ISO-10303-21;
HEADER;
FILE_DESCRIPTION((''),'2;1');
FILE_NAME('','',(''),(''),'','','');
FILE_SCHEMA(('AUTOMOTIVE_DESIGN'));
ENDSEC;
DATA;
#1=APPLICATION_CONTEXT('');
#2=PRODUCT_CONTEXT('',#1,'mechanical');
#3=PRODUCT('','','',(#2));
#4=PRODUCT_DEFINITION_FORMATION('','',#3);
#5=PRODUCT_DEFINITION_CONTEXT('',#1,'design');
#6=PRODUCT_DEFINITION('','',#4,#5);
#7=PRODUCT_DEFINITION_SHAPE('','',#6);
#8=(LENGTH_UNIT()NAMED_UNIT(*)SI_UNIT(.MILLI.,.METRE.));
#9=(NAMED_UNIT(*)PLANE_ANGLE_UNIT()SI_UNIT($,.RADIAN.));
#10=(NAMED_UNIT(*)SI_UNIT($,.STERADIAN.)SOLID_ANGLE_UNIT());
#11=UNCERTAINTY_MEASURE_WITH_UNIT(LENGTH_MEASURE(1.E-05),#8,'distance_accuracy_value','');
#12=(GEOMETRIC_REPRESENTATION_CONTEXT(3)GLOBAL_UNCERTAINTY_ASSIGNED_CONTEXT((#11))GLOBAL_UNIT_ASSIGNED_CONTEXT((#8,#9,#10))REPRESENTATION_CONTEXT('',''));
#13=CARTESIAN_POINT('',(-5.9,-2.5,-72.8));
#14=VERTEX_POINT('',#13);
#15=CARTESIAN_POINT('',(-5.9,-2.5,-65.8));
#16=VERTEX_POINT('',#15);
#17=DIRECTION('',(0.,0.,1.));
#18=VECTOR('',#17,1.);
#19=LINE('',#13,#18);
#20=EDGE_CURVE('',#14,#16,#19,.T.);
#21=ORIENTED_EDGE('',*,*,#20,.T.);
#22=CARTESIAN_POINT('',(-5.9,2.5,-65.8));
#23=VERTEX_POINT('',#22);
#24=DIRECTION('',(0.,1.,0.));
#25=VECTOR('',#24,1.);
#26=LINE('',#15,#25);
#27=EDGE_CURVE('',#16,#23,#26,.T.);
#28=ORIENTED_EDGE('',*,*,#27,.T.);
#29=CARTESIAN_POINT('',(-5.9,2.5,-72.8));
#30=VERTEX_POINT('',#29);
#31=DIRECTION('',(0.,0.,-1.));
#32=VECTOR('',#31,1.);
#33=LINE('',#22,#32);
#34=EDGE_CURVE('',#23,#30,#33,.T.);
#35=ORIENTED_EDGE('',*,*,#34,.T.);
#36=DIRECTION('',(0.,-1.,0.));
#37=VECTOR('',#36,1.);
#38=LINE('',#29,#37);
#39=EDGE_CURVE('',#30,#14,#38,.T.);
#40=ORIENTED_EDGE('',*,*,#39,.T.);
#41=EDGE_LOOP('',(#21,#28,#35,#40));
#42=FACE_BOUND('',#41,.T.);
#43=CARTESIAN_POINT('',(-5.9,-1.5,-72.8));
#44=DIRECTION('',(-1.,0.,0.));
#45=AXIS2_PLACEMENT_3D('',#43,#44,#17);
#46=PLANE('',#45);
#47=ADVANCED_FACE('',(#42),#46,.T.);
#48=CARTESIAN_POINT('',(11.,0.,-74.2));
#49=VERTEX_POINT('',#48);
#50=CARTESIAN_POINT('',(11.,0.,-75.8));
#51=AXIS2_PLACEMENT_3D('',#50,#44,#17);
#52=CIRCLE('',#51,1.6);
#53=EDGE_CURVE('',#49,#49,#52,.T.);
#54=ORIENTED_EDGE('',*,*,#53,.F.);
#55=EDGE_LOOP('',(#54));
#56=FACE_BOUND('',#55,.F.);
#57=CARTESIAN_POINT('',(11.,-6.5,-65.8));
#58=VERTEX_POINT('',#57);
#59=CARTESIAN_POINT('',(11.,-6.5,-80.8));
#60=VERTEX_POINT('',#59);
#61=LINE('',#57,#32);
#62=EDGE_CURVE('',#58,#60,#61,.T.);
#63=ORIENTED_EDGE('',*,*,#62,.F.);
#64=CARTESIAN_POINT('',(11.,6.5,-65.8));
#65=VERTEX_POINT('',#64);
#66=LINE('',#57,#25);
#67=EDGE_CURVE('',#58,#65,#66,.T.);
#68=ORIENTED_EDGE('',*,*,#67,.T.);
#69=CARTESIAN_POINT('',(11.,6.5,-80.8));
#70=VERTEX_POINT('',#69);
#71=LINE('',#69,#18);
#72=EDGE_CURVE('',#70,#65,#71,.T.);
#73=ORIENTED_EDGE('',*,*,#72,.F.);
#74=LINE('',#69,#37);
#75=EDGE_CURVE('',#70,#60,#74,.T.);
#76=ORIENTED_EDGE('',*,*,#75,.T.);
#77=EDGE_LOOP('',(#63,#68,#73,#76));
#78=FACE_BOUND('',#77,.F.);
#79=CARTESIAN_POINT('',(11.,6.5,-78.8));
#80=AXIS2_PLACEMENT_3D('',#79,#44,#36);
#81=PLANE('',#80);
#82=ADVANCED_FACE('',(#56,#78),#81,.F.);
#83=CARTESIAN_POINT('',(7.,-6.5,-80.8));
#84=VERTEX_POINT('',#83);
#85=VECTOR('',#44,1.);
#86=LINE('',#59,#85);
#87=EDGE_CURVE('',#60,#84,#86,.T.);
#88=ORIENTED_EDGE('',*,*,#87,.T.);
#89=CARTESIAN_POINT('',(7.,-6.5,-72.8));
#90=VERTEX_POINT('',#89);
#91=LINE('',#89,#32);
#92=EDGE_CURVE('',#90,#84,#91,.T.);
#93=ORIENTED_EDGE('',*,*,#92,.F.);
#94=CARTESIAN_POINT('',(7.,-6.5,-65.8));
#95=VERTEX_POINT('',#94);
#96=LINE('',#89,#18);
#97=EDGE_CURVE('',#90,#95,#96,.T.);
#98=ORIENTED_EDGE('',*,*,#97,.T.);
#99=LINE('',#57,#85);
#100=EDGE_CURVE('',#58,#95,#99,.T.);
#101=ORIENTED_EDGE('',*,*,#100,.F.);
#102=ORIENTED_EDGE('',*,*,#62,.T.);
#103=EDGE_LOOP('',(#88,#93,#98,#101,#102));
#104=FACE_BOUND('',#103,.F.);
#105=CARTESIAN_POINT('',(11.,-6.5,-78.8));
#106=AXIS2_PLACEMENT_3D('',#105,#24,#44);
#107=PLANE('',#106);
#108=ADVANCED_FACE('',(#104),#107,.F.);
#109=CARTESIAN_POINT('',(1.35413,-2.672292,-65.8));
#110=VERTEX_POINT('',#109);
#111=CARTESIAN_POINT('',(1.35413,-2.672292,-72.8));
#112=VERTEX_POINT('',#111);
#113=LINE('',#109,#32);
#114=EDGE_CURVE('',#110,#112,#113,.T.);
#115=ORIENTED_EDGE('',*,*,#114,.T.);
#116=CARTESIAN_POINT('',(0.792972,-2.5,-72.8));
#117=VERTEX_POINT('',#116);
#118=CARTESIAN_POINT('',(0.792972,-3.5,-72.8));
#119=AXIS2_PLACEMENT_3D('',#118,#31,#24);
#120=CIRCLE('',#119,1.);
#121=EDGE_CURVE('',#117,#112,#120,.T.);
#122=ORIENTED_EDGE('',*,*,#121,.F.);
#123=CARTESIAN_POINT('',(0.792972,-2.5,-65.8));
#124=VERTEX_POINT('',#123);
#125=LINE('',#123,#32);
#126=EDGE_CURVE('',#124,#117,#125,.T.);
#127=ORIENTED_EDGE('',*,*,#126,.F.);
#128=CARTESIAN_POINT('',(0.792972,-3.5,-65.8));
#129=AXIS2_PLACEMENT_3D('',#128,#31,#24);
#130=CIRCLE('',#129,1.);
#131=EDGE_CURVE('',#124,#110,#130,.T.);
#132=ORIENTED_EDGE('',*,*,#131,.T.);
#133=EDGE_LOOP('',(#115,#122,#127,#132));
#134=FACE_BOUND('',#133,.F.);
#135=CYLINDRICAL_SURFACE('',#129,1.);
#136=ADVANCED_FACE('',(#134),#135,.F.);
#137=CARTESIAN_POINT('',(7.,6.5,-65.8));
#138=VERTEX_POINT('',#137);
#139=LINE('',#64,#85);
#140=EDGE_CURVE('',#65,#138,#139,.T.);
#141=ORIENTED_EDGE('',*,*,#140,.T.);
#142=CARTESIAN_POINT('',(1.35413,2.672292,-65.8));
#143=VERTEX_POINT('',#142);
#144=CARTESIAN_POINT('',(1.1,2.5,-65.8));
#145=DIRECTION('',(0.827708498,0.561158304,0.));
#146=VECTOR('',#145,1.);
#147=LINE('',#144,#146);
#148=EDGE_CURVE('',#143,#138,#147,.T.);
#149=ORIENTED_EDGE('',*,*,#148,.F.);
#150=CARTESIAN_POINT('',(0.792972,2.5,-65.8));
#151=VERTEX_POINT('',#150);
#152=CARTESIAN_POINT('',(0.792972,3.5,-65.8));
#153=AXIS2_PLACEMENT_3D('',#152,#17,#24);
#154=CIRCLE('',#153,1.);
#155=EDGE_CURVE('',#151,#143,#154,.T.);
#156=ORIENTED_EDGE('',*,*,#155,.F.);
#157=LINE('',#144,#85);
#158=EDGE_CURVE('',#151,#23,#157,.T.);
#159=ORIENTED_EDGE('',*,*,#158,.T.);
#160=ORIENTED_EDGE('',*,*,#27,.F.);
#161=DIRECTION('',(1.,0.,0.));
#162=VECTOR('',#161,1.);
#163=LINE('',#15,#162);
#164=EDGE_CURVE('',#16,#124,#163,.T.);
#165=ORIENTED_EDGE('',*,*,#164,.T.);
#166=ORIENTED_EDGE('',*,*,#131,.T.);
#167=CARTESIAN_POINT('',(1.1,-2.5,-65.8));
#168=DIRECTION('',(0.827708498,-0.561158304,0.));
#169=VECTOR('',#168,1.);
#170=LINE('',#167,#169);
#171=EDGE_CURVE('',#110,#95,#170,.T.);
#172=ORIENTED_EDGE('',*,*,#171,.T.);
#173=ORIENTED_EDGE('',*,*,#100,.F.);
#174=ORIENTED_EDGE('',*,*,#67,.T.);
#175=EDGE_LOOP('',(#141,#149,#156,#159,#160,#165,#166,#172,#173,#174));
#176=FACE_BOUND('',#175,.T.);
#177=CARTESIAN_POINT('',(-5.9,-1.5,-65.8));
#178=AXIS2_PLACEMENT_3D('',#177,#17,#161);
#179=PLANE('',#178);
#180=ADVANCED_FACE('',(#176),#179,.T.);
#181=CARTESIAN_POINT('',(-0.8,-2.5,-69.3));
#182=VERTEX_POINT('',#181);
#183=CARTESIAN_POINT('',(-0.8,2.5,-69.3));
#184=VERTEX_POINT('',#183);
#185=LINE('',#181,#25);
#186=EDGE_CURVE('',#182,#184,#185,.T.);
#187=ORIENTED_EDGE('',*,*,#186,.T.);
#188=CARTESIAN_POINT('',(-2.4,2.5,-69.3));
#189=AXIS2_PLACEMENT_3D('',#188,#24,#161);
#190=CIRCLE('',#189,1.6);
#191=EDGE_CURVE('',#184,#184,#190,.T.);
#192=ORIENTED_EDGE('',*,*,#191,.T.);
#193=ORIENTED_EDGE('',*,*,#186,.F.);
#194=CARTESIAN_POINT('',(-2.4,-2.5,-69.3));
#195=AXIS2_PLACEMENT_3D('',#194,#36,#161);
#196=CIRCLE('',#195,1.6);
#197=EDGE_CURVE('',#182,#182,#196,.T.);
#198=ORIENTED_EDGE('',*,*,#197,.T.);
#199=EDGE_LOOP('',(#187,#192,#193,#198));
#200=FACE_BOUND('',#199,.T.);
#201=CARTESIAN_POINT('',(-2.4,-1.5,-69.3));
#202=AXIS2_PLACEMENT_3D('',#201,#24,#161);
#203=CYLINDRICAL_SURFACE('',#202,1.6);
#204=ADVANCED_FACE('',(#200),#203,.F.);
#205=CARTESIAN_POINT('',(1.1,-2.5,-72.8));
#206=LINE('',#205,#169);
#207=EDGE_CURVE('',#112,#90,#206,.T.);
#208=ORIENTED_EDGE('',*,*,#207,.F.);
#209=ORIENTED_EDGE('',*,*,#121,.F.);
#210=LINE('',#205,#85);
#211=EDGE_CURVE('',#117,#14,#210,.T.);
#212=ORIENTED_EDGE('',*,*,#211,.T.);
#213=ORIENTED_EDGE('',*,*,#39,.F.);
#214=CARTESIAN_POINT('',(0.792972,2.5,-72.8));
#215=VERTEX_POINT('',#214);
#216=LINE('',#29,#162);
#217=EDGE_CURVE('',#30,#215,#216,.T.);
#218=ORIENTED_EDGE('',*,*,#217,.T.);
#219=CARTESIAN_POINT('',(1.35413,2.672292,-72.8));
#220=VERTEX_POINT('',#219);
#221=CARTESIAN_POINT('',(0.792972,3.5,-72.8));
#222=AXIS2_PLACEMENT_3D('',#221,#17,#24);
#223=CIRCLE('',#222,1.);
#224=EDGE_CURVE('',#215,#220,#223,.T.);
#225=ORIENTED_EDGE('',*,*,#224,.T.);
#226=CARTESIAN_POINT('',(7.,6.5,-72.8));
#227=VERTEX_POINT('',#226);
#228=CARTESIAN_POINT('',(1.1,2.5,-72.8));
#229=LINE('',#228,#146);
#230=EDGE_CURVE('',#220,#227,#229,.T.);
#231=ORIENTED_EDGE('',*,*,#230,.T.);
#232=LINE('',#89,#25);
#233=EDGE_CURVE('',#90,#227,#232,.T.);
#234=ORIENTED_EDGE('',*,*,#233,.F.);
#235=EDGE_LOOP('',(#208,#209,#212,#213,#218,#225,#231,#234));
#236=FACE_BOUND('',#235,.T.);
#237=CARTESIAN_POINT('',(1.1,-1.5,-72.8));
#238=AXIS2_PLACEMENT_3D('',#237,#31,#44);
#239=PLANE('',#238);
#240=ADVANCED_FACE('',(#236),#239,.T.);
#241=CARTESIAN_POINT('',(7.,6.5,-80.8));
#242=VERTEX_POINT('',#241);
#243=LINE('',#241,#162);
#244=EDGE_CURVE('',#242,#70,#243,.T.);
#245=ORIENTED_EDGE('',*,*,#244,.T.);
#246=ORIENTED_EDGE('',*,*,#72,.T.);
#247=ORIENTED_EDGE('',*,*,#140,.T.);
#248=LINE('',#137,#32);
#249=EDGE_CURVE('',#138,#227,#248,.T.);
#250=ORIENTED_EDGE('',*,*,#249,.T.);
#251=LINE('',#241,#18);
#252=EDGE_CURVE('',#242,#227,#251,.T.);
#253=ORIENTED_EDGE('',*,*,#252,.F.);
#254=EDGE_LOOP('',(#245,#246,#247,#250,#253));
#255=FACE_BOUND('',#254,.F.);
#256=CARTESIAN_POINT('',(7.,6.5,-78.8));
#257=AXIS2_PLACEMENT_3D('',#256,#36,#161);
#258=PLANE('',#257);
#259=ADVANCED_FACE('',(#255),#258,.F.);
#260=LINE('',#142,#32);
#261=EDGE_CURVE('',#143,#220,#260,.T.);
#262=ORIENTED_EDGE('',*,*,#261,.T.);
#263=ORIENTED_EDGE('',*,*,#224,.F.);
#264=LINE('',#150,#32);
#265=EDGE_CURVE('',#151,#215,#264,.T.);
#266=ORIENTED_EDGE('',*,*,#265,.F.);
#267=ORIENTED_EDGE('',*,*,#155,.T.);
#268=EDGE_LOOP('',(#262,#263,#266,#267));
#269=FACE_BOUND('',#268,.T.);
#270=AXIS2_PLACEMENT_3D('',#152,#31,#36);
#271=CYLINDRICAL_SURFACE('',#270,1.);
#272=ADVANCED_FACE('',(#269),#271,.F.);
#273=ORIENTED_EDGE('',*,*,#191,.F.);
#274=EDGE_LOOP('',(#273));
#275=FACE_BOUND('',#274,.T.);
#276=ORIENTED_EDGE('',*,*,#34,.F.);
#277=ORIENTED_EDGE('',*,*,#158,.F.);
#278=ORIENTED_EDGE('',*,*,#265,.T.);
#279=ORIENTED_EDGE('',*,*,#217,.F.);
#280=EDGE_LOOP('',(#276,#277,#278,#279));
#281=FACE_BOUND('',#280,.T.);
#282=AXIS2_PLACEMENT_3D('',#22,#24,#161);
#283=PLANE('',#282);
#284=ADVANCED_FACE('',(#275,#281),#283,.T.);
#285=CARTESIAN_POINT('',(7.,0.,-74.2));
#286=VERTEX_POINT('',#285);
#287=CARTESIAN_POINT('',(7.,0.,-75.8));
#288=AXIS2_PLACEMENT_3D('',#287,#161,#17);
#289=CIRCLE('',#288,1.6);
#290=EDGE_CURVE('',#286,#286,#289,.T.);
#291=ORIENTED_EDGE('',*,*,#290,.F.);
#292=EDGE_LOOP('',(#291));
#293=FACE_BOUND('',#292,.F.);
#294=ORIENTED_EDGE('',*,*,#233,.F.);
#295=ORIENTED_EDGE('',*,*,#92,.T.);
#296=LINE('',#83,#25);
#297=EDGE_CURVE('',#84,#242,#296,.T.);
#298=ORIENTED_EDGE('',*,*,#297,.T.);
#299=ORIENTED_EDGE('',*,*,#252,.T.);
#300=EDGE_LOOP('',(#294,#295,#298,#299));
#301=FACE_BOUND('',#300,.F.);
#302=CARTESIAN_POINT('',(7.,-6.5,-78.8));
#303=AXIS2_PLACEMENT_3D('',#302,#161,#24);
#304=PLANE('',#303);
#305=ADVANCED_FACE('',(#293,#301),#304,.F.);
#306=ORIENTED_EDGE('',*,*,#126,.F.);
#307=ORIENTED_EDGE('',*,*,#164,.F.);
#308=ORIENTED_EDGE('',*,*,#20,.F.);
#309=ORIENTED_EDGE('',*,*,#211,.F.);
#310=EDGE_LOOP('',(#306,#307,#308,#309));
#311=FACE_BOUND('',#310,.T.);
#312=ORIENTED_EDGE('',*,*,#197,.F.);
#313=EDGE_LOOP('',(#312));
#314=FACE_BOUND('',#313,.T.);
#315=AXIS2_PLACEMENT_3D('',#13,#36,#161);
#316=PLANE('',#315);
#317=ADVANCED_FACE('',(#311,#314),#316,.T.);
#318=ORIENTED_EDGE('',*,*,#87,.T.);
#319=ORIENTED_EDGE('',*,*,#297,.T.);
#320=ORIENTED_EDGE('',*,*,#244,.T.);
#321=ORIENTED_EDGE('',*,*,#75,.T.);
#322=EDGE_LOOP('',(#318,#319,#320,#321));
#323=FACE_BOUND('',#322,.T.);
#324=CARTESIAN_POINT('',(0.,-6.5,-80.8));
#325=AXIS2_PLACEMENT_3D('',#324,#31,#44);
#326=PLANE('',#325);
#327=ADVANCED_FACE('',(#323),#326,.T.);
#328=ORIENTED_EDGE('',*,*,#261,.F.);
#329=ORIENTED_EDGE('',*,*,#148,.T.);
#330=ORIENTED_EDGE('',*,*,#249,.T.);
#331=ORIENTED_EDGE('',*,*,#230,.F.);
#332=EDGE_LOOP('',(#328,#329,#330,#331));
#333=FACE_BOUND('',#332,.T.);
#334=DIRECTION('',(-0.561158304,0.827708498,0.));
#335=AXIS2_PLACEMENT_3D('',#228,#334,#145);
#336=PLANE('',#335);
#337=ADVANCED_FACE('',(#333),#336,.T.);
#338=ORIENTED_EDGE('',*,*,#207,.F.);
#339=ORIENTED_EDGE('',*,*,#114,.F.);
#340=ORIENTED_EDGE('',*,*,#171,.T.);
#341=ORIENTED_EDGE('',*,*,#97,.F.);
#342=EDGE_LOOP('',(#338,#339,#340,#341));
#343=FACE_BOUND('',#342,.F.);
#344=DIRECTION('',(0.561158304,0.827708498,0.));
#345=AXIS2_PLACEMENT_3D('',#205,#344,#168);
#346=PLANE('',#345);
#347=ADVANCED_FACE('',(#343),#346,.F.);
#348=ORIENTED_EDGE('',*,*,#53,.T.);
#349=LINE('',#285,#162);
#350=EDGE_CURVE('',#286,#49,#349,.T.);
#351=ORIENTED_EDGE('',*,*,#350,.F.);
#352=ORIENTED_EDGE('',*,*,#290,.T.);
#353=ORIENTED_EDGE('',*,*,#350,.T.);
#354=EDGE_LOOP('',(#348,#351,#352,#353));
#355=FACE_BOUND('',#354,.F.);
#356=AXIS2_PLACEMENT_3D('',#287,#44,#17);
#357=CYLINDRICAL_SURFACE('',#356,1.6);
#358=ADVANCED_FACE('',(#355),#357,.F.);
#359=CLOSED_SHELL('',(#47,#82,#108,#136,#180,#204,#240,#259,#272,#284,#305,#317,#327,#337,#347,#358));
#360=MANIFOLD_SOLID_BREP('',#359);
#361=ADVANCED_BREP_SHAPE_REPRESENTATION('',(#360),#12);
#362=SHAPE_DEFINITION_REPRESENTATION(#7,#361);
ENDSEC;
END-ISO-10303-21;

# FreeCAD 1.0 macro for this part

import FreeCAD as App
import Part
import Sketcher
Q = App.Units.Quantity


def edges_at(feature, points):
    """Names of the edges that pass closest to the given points."""
    edges = feature.Shape.Edges
    near = lambda p: min(range(len(edges)), key=lambda i: edges[i].distToShape(Part.Vertex(*p))[0])
    return sorted({f"Edge{near(p) + 1}" for p in points})

doc = App.newDocument("Part")
body = doc.addObject("PartDesign::Body", "Body")
body.AllowCompound = True

sketch1 = body.newObject("Sketcher::SketchObject", "Sketch")
sketch1.AttachmentSupport = (doc.getObject("YZ_Plane"), [""])
sketch1.MapMode = "FlatFace"
sketch1.addGeometry(Part.LineSegment(App.Vector(3.5, -3.5, 0), App.Vector(3.5, 6.5, 0)), False)
sketch1.addGeometry(Part.LineSegment(App.Vector(3.5, 6.5, 0), App.Vector(-3.5, 6.5, 0)), False)
sketch1.addGeometry(Part.LineSegment(App.Vector(-3.5, 6.5, 0), App.Vector(-3.5, -3.5, 0)), False)
sketch1.addGeometry(Part.LineSegment(App.Vector(-3.5, -3.5, 0), App.Vector(3.5, -3.5, 0)), False)
sketch1.addGeometry(Part.Circle(App.Vector(0, 0, 0), App.Vector(0, 0, 1), 1.6), False)
sketch1.addGeometry(Part.LineSegment(App.Vector(3.5, -62.8, 0), App.Vector(-3.5, -62.8, 0)), False)
sketch1.addGeometry(Part.LineSegment(App.Vector(-3.5, -62.8, 0), App.Vector(-3.5, -72.8, 0)), False)
sketch1.addGeometry(Part.LineSegment(App.Vector(-3.5, -72.8, 0), App.Vector(3.5, -72.8, 0)), False)
sketch1.addGeometry(Part.LineSegment(App.Vector(3.5, -72.8, 0), App.Vector(3.5, -62.8, 0)), False)
sketch1.addGeometry(Part.Circle(App.Vector(0, -66.3, 0), App.Vector(0, 0, 1), 1.6), False)
sketch1.addConstraint(Sketcher.Constraint("Coincident", 0, 2, 1, 1))
sketch1.addConstraint(Sketcher.Constraint("Coincident", 1, 2, 2, 1))
sketch1.addConstraint(Sketcher.Constraint("Coincident", 2, 2, 3, 1))
sketch1.addConstraint(Sketcher.Constraint("Coincident", 3, 2, 0, 1))
sketch1.addConstraint(Sketcher.Constraint("Coincident", 5, 2, 6, 1))
sketch1.addConstraint(Sketcher.Constraint("Coincident", 6, 2, 7, 1))
sketch1.addConstraint(Sketcher.Constraint("Coincident", 7, 2, 8, 1))
sketch1.addConstraint(Sketcher.Constraint("Coincident", 8, 2, 5, 1))
sketch1.addConstraint(Sketcher.Constraint("Vertical", 0))
sketch1.addConstraint(Sketcher.Constraint("Horizontal", 1))
sketch1.addConstraint(Sketcher.Constraint("Vertical", 2))
sketch1.addConstraint(Sketcher.Constraint("Horizontal", 3))
sketch1.addConstraint(Sketcher.Constraint("Horizontal", 5))
sketch1.addConstraint(Sketcher.Constraint("Vertical", 6))
sketch1.addConstraint(Sketcher.Constraint("Horizontal", 7))
sketch1.addConstraint(Sketcher.Constraint("Vertical", 8))
sketch1.addConstraint(Sketcher.Constraint("Coincident", 4, 3, -1, 1))
sketch1.addConstraint(Sketcher.Constraint("Equal", 4, 9))
sketch1.addConstraint(Sketcher.Constraint("PointOnObject", 9, 3, -2))
sketch1.addConstraint(Sketcher.Constraint("Vertical", 2, 2, 5, 2))
sketch1.addConstraint(Sketcher.Constraint("Vertical", 3, 2, 7, 2))
sketch1.addConstraint(Sketcher.Constraint("Equal", 2, 6))
sketch1.addConstraint(Sketcher.Constraint("Diameter", 4, Q("3.2 mm")))
sketch1.addConstraint(Sketcher.Constraint("DistanceX", 1, 2, 1, 1, Q("7 mm")))
sketch1.addConstraint(Sketcher.Constraint("DistanceY", 9, 3, -1, 1, Q("66.3 mm")))
sketch1.addConstraint(Sketcher.Constraint("DistanceX", -1, 1, 0, 2, Q("3.5 mm")))
sketch1.addConstraint(Sketcher.Constraint("DistanceY", 2, 2, -1, 1, Q("3.5 mm")))
sketch1.addConstraint(Sketcher.Constraint("DistanceY", 9, 3, 5, 2, Q("3.5 mm")))
sketch1.addConstraint(Sketcher.Constraint("DistanceY", 0, 1, 0, 2, Q("10 mm")))
pad1 = body.newObject("PartDesign::Pad", "Pad")
pad1.Profile = sketch1
pad1.Length = 3

sketch2 = body.newObject("Sketcher::SketchObject", "Sketch001")
sketch2.AttachmentSupport = (doc.getObject("YZ_Plane"), [""])
sketch2.MapMode = "FlatFace"
sketch2.AttachmentOffset = App.Placement(App.Vector(0, 0, 3), App.Rotation())
sketch2.addGeometry(Part.LineSegment(App.Vector(3.5, 2.5, 0), App.Vector(3.5, 6.5, 0)), False)
sketch2.addGeometry(Part.LineSegment(App.Vector(3.5, 6.5, 0), App.Vector(-3.5, 6.5, 0)), False)
sketch2.addGeometry(Part.LineSegment(App.Vector(-3.5, 6.5, 0), App.Vector(-3.5, 2.5, 0)), False)
sketch2.addGeometry(Part.LineSegment(App.Vector(-3.5, 2.5, 0), App.Vector(3.5, 2.5, 0)), False)
sketch2.addGeometry(Part.LineSegment(App.Vector(3.5, -68.8, 0), App.Vector(-3.5, -68.8, 0)), False)
sketch2.addGeometry(Part.LineSegment(App.Vector(-3.5, -68.8, 0), App.Vector(-3.5, -72.8, 0)), False)
sketch2.addGeometry(Part.LineSegment(App.Vector(-3.5, -72.8, 0), App.Vector(3.5, -72.8, 0)), False)
sketch2.addGeometry(Part.LineSegment(App.Vector(3.5, -72.8, 0), App.Vector(3.5, -68.8, 0)), False)
sketch2.addConstraint(Sketcher.Constraint("Coincident", 0, 2, 1, 1))
sketch2.addConstraint(Sketcher.Constraint("Coincident", 1, 2, 2, 1))
sketch2.addConstraint(Sketcher.Constraint("Coincident", 2, 2, 3, 1))
sketch2.addConstraint(Sketcher.Constraint("Coincident", 3, 2, 0, 1))
sketch2.addConstraint(Sketcher.Constraint("Coincident", 4, 2, 5, 1))
sketch2.addConstraint(Sketcher.Constraint("Coincident", 5, 2, 6, 1))
sketch2.addConstraint(Sketcher.Constraint("Coincident", 6, 2, 7, 1))
sketch2.addConstraint(Sketcher.Constraint("Coincident", 7, 2, 4, 1))
sketch2.addConstraint(Sketcher.Constraint("Vertical", 0))
sketch2.addConstraint(Sketcher.Constraint("Horizontal", 1))
sketch2.addConstraint(Sketcher.Constraint("Vertical", 2))
sketch2.addConstraint(Sketcher.Constraint("Horizontal", 3))
sketch2.addConstraint(Sketcher.Constraint("Horizontal", 4))
sketch2.addConstraint(Sketcher.Constraint("Vertical", 5))
sketch2.addConstraint(Sketcher.Constraint("Horizontal", 6))
sketch2.addConstraint(Sketcher.Constraint("Vertical", 7))
sketch2.addConstraint(Sketcher.Constraint("Vertical", 2, 2, 4, 2))
sketch2.addConstraint(Sketcher.Constraint("Vertical", 3, 2, 6, 2))
sketch2.addConstraint(Sketcher.Constraint("Equal", 2, 5))
sketch2.addConstraint(Sketcher.Constraint("DistanceY", 0, 1, 0, 2, Q("4 mm")))
sketch2.addConstraint(Sketcher.Constraint("DistanceX", 1, 2, 1, 1, Q("7 mm")))
sketch2.addConstraint(Sketcher.Constraint("DistanceX", -1, 1, 0, 2, Q("3.5 mm")))
sketch2.addConstraint(Sketcher.Constraint("DistanceY", -1, 1, 0, 2, Q("6.5 mm")))
sketch2.addConstraint(Sketcher.Constraint("DistanceY", 4, 2, -1, 1, Q("68.8 mm")))
pad2 = body.newObject("PartDesign::Pad", "Pad001")
pad2.Profile = sketch2
pad2.Length = 10

sketch3 = body.newObject("Sketcher::SketchObject", "Sketch002")
sketch3.AttachmentSupport = (doc.getObject("YZ_Plane"), [""])
sketch3.MapMode = "FlatFace"
sketch3.addGeometry(Part.LineSegment(App.Vector(-3.5, 6.5, 0), App.Vector(3.5, 6.5, 0)), False)
sketch3.addGeometry(Part.LineSegment(App.Vector(3.5, 6.5, 0), App.Vector(3.5, -3.5, 0)), False)
sketch3.addGeometry(Part.LineSegment(App.Vector(3.5, -3.5, 0), App.Vector(-3.5, -3.5, 0)), False)
sketch3.addGeometry(Part.LineSegment(App.Vector(-3.5, -3.5, 0), App.Vector(-3.5, 6.5, 0)), False)
sketch3.addGeometry(Part.Circle(App.Vector(0, 0, 0), App.Vector(0, 0, 1), 1.6), False)
sketch3.addConstraint(Sketcher.Constraint("Coincident", 0, 2, 1, 1))
sketch3.addConstraint(Sketcher.Constraint("Coincident", 1, 2, 2, 1))
sketch3.addConstraint(Sketcher.Constraint("Coincident", 2, 2, 3, 1))
sketch3.addConstraint(Sketcher.Constraint("Coincident", 3, 2, 0, 1))
sketch3.addConstraint(Sketcher.Constraint("Horizontal", 0))
sketch3.addConstraint(Sketcher.Constraint("Vertical", 1))
sketch3.addConstraint(Sketcher.Constraint("Horizontal", 2))
sketch3.addConstraint(Sketcher.Constraint("Vertical", 3))
sketch3.addConstraint(Sketcher.Constraint("Coincident", 4, 3, -1, 1))
sketch3.addConstraint(Sketcher.Constraint("Diameter", 4, Q("3.2 mm")))
sketch3.addConstraint(Sketcher.Constraint("DistanceX", 0, 1, 0, 2, Q("7 mm")))
sketch3.addConstraint(Sketcher.Constraint("DistanceY", 1, 2, 1, 1, Q("10 mm")))
sketch3.addConstraint(Sketcher.Constraint("DistanceX", -1, 1, 0, 2, Q("3.5 mm")))
sketch3.addConstraint(Sketcher.Constraint("DistanceY", -1, 1, 0, 2, Q("6.5 mm")))
pocket1 = body.newObject("PartDesign::Pocket", "Pocket")
pocket1.Profile = sketch3
pocket1.Type = "ThroughAll"
pocket1.Reversed = True

sketch4 = body.newObject("Sketcher::SketchObject", "Sketch003")
sketch4.AttachmentSupport = (doc.getObject("XZ_Plane"), [""])
sketch4.MapMode = "FlatFace"
sketch4.AttachmentOffset = App.Placement(App.Vector(0, 0, 3.5), App.Rotation())
sketch4.addGeometry(Part.LineSegment(App.Vector(3, -62.8, 0), App.Vector(0, -62.8, 0)), False)
sketch4.addGeometry(Part.LineSegment(App.Vector(0, -62.8, 0), App.Vector(0, -72.8, 0)), False)
sketch4.addGeometry(Part.LineSegment(App.Vector(0, -72.8, 0), App.Vector(13, -72.8, 0)), False)
sketch4.addGeometry(Part.LineSegment(App.Vector(13, -72.8, 0), App.Vector(13, -68.8, 0)), False)
sketch4.addGeometry(Part.LineSegment(App.Vector(13, -68.8, 0), App.Vector(3, -68.8, 0)), False)
sketch4.addGeometry(Part.LineSegment(App.Vector(3, -68.8, 0), App.Vector(3, -62.8, 0)), False)
sketch4.addConstraint(Sketcher.Constraint("Coincident", 0, 2, 1, 1))
sketch4.addConstraint(Sketcher.Constraint("Coincident", 1, 2, 2, 1))
sketch4.addConstraint(Sketcher.Constraint("Coincident", 2, 2, 3, 1))
sketch4.addConstraint(Sketcher.Constraint("Coincident", 3, 2, 4, 1))
sketch4.addConstraint(Sketcher.Constraint("Coincident", 4, 2, 5, 1))
sketch4.addConstraint(Sketcher.Constraint("Coincident", 5, 2, 0, 1))
sketch4.addConstraint(Sketcher.Constraint("Horizontal", 0))
sketch4.addConstraint(Sketcher.Constraint("Vertical", 1))
sketch4.addConstraint(Sketcher.Constraint("Horizontal", 2))
sketch4.addConstraint(Sketcher.Constraint("Vertical", 3))
sketch4.addConstraint(Sketcher.Constraint("Horizontal", 4))
sketch4.addConstraint(Sketcher.Constraint("Vertical", 5))
sketch4.addConstraint(Sketcher.Constraint("PointOnObject", 0, 2, -2))
sketch4.addConstraint(Sketcher.Constraint("Equal", 4, 1))
sketch4.addConstraint(Sketcher.Constraint("DistanceX", 0, 2, 0, 1, Q("3 mm")))
sketch4.addConstraint(Sketcher.Constraint("DistanceX", 2, 1, 2, 2, Q("13 mm")))
sketch4.addConstraint(Sketcher.Constraint("DistanceY", 3, 1, 3, 2, Q("4 mm")))
sketch4.addConstraint(Sketcher.Constraint("DistanceY", 0, 2, -1, 1, Q("62.8 mm")))
pad3 = body.newObject("PartDesign::Pad", "Pad002")
pad3.Profile = sketch4
pad3.Length = 3

sketch5 = body.newObject("Sketcher::SketchObject", "Sketch004")
sketch5.AttachmentSupport = (doc.getObject("XZ_Plane"), [""])
sketch5.MapMode = "FlatFace"
sketch5.AttachmentOffset = App.Placement(App.Vector(0, 0, -3.5), App.Rotation())
sketch5.addGeometry(Part.LineSegment(App.Vector(13, -72.8, 0), App.Vector(0, -72.8, 0)), False)
sketch5.addGeometry(Part.LineSegment(App.Vector(0, -72.8, 0), App.Vector(0, -62.8, 0)), False)
sketch5.addGeometry(Part.LineSegment(App.Vector(0, -62.8, 0), App.Vector(3, -62.8, 0)), False)
sketch5.addGeometry(Part.LineSegment(App.Vector(3, -62.8, 0), App.Vector(3, -68.8, 0)), False)
sketch5.addGeometry(Part.LineSegment(App.Vector(3, -68.8, 0), App.Vector(13, -68.8, 0)), False)
sketch5.addGeometry(Part.LineSegment(App.Vector(13, -68.8, 0), App.Vector(13, -72.8, 0)), False)
sketch5.addConstraint(Sketcher.Constraint("Coincident", 0, 2, 1, 1))
sketch5.addConstraint(Sketcher.Constraint("Coincident", 1, 2, 2, 1))
sketch5.addConstraint(Sketcher.Constraint("Coincident", 2, 2, 3, 1))
sketch5.addConstraint(Sketcher.Constraint("Coincident", 3, 2, 4, 1))
sketch5.addConstraint(Sketcher.Constraint("Coincident", 4, 2, 5, 1))
sketch5.addConstraint(Sketcher.Constraint("Coincident", 5, 2, 0, 1))
sketch5.addConstraint(Sketcher.Constraint("Horizontal", 0))
sketch5.addConstraint(Sketcher.Constraint("Vertical", 1))
sketch5.addConstraint(Sketcher.Constraint("Horizontal", 2))
sketch5.addConstraint(Sketcher.Constraint("Vertical", 3))
sketch5.addConstraint(Sketcher.Constraint("Horizontal", 4))
sketch5.addConstraint(Sketcher.Constraint("Vertical", 5))
sketch5.addConstraint(Sketcher.Constraint("PointOnObject", 0, 2, -2))
sketch5.addConstraint(Sketcher.Constraint("Equal", 4, 1))
sketch5.addConstraint(Sketcher.Constraint("DistanceX", 0, 2, 0, 1, Q("13 mm")))
sketch5.addConstraint(Sketcher.Constraint("DistanceX", 2, 1, 2, 2, Q("3 mm")))
sketch5.addConstraint(Sketcher.Constraint("DistanceY", 3, 2, 3, 1, Q("6 mm")))
sketch5.addConstraint(Sketcher.Constraint("DistanceY", 0, 2, -1, 1, Q("72.8 mm")))
pad4 = body.newObject("PartDesign::Pad", "Pad003")
pad4.Profile = sketch5
pad4.Length = 3
pad4.Reversed = True

sketch6 = body.newObject("Sketcher::SketchObject", "Sketch005")
sketch6.AttachmentSupport = (doc.getObject("YZ_Plane"), [""])
sketch6.MapMode = "FlatFace"
sketch6.AttachmentOffset = App.Placement(App.Vector(0, 0, 13), App.Rotation())
sketch6.addGeometry(Part.LineSegment(App.Vector(6.5, -68.8, 0), App.Vector(-6.5, -68.8, 0)), False)
sketch6.addGeometry(Part.LineSegment(App.Vector(-6.5, -68.8, 0), App.Vector(-6.5, -72.8, 0)), False)
sketch6.addGeometry(Part.LineSegment(App.Vector(-6.5, -72.8, 0), App.Vector(6.5, -72.8, 0)), False)
sketch6.addGeometry(Part.LineSegment(App.Vector(6.5, -72.8, 0), App.Vector(6.5, -68.8, 0)), False)
sketch6.addConstraint(Sketcher.Constraint("Coincident", 0, 2, 1, 1))
sketch6.addConstraint(Sketcher.Constraint("Coincident", 1, 2, 2, 1))
sketch6.addConstraint(Sketcher.Constraint("Coincident", 2, 2, 3, 1))
sketch6.addConstraint(Sketcher.Constraint("Coincident", 3, 2, 0, 1))
sketch6.addConstraint(Sketcher.Constraint("Horizontal", 0))
sketch6.addConstraint(Sketcher.Constraint("Vertical", 1))
sketch6.addConstraint(Sketcher.Constraint("Horizontal", 2))
sketch6.addConstraint(Sketcher.Constraint("Vertical", 3))
sketch6.addConstraint(Sketcher.Constraint("DistanceX", 0, 2, 0, 1, Q("13 mm")))
sketch6.addConstraint(Sketcher.Constraint("DistanceY", 1, 2, 1, 1, Q("4 mm")))
sketch6.addConstraint(Sketcher.Constraint("DistanceX", 0, 2, -1, 1, Q("6.5 mm")))
sketch6.addConstraint(Sketcher.Constraint("DistanceY", 0, 2, -1, 1, Q("68.8 mm")))
pocket2 = body.newObject("PartDesign::Pocket", "Pocket001")
pocket2.Profile = sketch6
pocket2.Length = 2

sketch7 = body.newObject("Sketcher::SketchObject", "Sketch006")
sketch7.AttachmentSupport = (doc.getObject("XY_Plane"), [""])
sketch7.MapMode = "FlatFace"
sketch7.AttachmentOffset = App.Placement(App.Vector(0, 0, -72.8), App.Rotation())
sketch7.addGeometry(Part.LineSegment(App.Vector(11, -6.5, 0), App.Vector(7, -6.5, 0)), False)
sketch7.addGeometry(Part.LineSegment(App.Vector(7, -6.5, 0), App.Vector(7, 6.5, 0)), False)
sketch7.addGeometry(Part.LineSegment(App.Vector(7, 6.5, 0), App.Vector(11, 6.5, 0)), False)
sketch7.addGeometry(Part.LineSegment(App.Vector(11, 6.5, 0), App.Vector(11, -6.5, 0)), False)
sketch7.addConstraint(Sketcher.Constraint("Coincident", 0, 2, 1, 1))
sketch7.addConstraint(Sketcher.Constraint("Coincident", 1, 2, 2, 1))
sketch7.addConstraint(Sketcher.Constraint("Coincident", 2, 2, 3, 1))
sketch7.addConstraint(Sketcher.Constraint("Coincident", 3, 2, 0, 1))
sketch7.addConstraint(Sketcher.Constraint("Horizontal", 0))
sketch7.addConstraint(Sketcher.Constraint("Vertical", 1))
sketch7.addConstraint(Sketcher.Constraint("Horizontal", 2))
sketch7.addConstraint(Sketcher.Constraint("Vertical", 3))
sketch7.addConstraint(Sketcher.Constraint("DistanceX", 0, 2, 0, 1, Q("4 mm")))
sketch7.addConstraint(Sketcher.Constraint("DistanceY", 1, 1, 1, 2, Q("13 mm")))
sketch7.addConstraint(Sketcher.Constraint("DistanceX", -1, 1, 0, 2, Q("7 mm")))
sketch7.addConstraint(Sketcher.Constraint("DistanceY", 0, 2, -1, 1, Q("6.5 mm")))
pad5 = body.newObject("PartDesign::Pad", "Pad004")
pad5.Profile = sketch7
pad5.Length = 6
pad5.Reversed = True

sketch8 = body.newObject("Sketcher::SketchObject", "Sketch007")
sketch8.AttachmentSupport = (doc.getObject("YZ_Plane"), [""])
sketch8.MapMode = "FlatFace"
sketch8.AttachmentOffset = App.Placement(App.Vector(0, 0, 7), App.Rotation())
sketch8.addGeometry(Part.Circle(App.Vector(0, -75.8, 0), App.Vector(0, 0, 1), 1.6), False)
sketch8.addConstraint(Sketcher.Constraint("PointOnObject", 0, 3, -2))
sketch8.addConstraint(Sketcher.Constraint("Diameter", 0, Q("3.2 mm")))
sketch8.addConstraint(Sketcher.Constraint("DistanceY", 0, 3, -1, 1, Q("75.8 mm")))
pocket3 = body.newObject("PartDesign::Pocket", "Pocket002")
pocket3.Profile = sketch8
pocket3.Length = 6
pocket3.Reversed = True

sketch9 = body.newObject("Sketcher::SketchObject", "Sketch008")
sketch9.AttachmentSupport = (doc.getObject("YZ_Plane"), [""])
sketch9.MapMode = "FlatFace"
sketch9.AttachmentOffset = App.Placement(App.Vector(0, 0, 3), App.Rotation())
sketch9.addGeometry(Part.LineSegment(App.Vector(-6.5, -62.8, 0), App.Vector(-6.5, -68.8, 0)), False)
sketch9.addGeometry(Part.LineSegment(App.Vector(-6.5, -68.8, 0), App.Vector(6.5, -68.8, 0)), False)
sketch9.addGeometry(Part.LineSegment(App.Vector(6.5, -68.8, 0), App.Vector(6.5, -62.8, 0)), False)
sketch9.addGeometry(Part.LineSegment(App.Vector(6.5, -62.8, 0), App.Vector(-6.5, -62.8, 0)), False)
sketch9.addGeometry(Part.Circle(App.Vector(0, -66.3, 0), App.Vector(0, 0, 1), 1.6), False)
sketch9.addConstraint(Sketcher.Constraint("Coincident", 0, 2, 1, 1))
sketch9.addConstraint(Sketcher.Constraint("Coincident", 1, 2, 2, 1))
sketch9.addConstraint(Sketcher.Constraint("Coincident", 2, 2, 3, 1))
sketch9.addConstraint(Sketcher.Constraint("Coincident", 3, 2, 0, 1))
sketch9.addConstraint(Sketcher.Constraint("Vertical", 0))
sketch9.addConstraint(Sketcher.Constraint("Horizontal", 1))
sketch9.addConstraint(Sketcher.Constraint("Vertical", 2))
sketch9.addConstraint(Sketcher.Constraint("Horizontal", 3))
sketch9.addConstraint(Sketcher.Constraint("PointOnObject", 4, 3, -2))
sketch9.addConstraint(Sketcher.Constraint("Diameter", 4, Q("3.2 mm")))
sketch9.addConstraint(Sketcher.Constraint("DistanceX", 1, 1, 1, 2, Q("13 mm")))
sketch9.addConstraint(Sketcher.Constraint("DistanceY", 0, 2, 0, 1, Q("6 mm")))
sketch9.addConstraint(Sketcher.Constraint("DistanceY", 4, 3, -1, 1, Q("66.3 mm")))
sketch9.addConstraint(Sketcher.Constraint("DistanceX", 0, 2, -1, 1, Q("6.5 mm")))
sketch9.addConstraint(Sketcher.Constraint("DistanceY", 0, 2, -1, 1, Q("68.8 mm")))
pocket4 = body.newObject("PartDesign::Pocket", "Pocket003")
pocket4.Profile = sketch9
pocket4.Length = 6

sketch10 = body.newObject("Sketcher::SketchObject", "Sketch009")
sketch10.AttachmentSupport = (doc.getObject("YZ_Plane"), [""])
sketch10.MapMode = "FlatFace"
sketch10.addGeometry(Part.LineSegment(App.Vector(-6.5, -72.8, 0), App.Vector(-6.5, -68.8, 0)), False)
sketch10.addGeometry(Part.LineSegment(App.Vector(-6.5, -68.8, 0), App.Vector(6.5, -68.8, 0)), False)
sketch10.addGeometry(Part.LineSegment(App.Vector(6.5, -68.8, 0), App.Vector(6.5, -72.8, 0)), False)
sketch10.addGeometry(Part.LineSegment(App.Vector(6.5, -72.8, 0), App.Vector(-6.5, -72.8, 0)), False)
sketch10.addConstraint(Sketcher.Constraint("Coincident", 0, 2, 1, 1))
sketch10.addConstraint(Sketcher.Constraint("Coincident", 1, 2, 2, 1))
sketch10.addConstraint(Sketcher.Constraint("Coincident", 2, 2, 3, 1))
sketch10.addConstraint(Sketcher.Constraint("Coincident", 3, 2, 0, 1))
sketch10.addConstraint(Sketcher.Constraint("Vertical", 0))
sketch10.addConstraint(Sketcher.Constraint("Horizontal", 1))
sketch10.addConstraint(Sketcher.Constraint("Vertical", 2))
sketch10.addConstraint(Sketcher.Constraint("Horizontal", 3))
sketch10.addConstraint(Sketcher.Constraint("DistanceX", 1, 1, 1, 2, Q("13 mm")))
sketch10.addConstraint(Sketcher.Constraint("DistanceY", 0, 1, 0, 2, Q("4 mm")))
sketch10.addConstraint(Sketcher.Constraint("DistanceX", 0, 2, -1, 1, Q("6.5 mm")))
sketch10.addConstraint(Sketcher.Constraint("DistanceY", 0, 2, -1, 1, Q("68.8 mm")))
pad6 = body.newObject("PartDesign::Pad", "Pad005")
pad6.Profile = sketch10
pad6.Length = 5.9
pad6.Reversed = True

sketch11 = body.newObject("Sketcher::SketchObject", "Sketch010")
sketch11.AttachmentSupport = (doc.getObject("XY_Plane"), [""])
sketch11.MapMode = "FlatFace"
sketch11.AttachmentOffset = App.Placement(App.Vector(0, 0, -72.8), App.Rotation())
sketch11.addGeometry(Part.LineSegment(App.Vector(-5.9, 6.5, 0), App.Vector(7, 6.5, 0)), False)
sketch11.addGeometry(Part.LineSegment(App.Vector(7, 6.5, 0), App.Vector(0.1, 1.5, 0)), False)
sketch11.addGeometry(Part.LineSegment(App.Vector(0.1, 1.5, 0), App.Vector(-5.9, 1.5, 0)), False)
sketch11.addGeometry(Part.LineSegment(App.Vector(-5.9, 1.5, 0), App.Vector(-5.9, 6.5, 0)), False)
sketch11.addGeometry(Part.LineSegment(App.Vector(0.1, -1.5, 0), App.Vector(7, -6.5, 0)), False)
sketch11.addGeometry(Part.LineSegment(App.Vector(7, -6.5, 0), App.Vector(-5.9, -6.5, 0)), False)
sketch11.addGeometry(Part.LineSegment(App.Vector(-5.9, -6.5, 0), App.Vector(-5.9, -1.5, 0)), False)
sketch11.addGeometry(Part.LineSegment(App.Vector(-5.9, -1.5, 0), App.Vector(0.1, -1.5, 0)), False)
sketch11.addConstraint(Sketcher.Constraint("Coincident", 0, 2, 1, 1))
sketch11.addConstraint(Sketcher.Constraint("Coincident", 1, 2, 2, 1))
sketch11.addConstraint(Sketcher.Constraint("Coincident", 2, 2, 3, 1))
sketch11.addConstraint(Sketcher.Constraint("Coincident", 3, 2, 0, 1))
sketch11.addConstraint(Sketcher.Constraint("Coincident", 4, 2, 5, 1))
sketch11.addConstraint(Sketcher.Constraint("Coincident", 5, 2, 6, 1))
sketch11.addConstraint(Sketcher.Constraint("Coincident", 6, 2, 7, 1))
sketch11.addConstraint(Sketcher.Constraint("Coincident", 7, 2, 4, 1))
sketch11.addConstraint(Sketcher.Constraint("Horizontal", 0))
sketch11.addConstraint(Sketcher.Constraint("Horizontal", 2))
sketch11.addConstraint(Sketcher.Constraint("Vertical", 3))
sketch11.addConstraint(Sketcher.Constraint("Horizontal", 5))
sketch11.addConstraint(Sketcher.Constraint("Vertical", 6))
sketch11.addConstraint(Sketcher.Constraint("Horizontal", 7))
sketch11.addConstraint(Sketcher.Constraint("Symmetric", 0, 2, 4, 2, -1))
sketch11.addConstraint(Sketcher.Constraint("Symmetric", 2, 2, 6, 2, -1))
sketch11.addConstraint(Sketcher.Constraint("Vertical", 1, 2, 7, 2))
sketch11.addConstraint(Sketcher.Constraint("DistanceX", 2, 2, 2, 1, Q("6 mm")))
sketch11.addConstraint(Sketcher.Constraint("DistanceY", 3, 1, 3, 2, Q("5 mm")))
sketch11.addConstraint(Sketcher.Constraint("DistanceY", 6, 2, 2, 2, Q("3 mm")))
sketch11.addConstraint(Sketcher.Constraint("DistanceX", 0, 1, 0, 2, Q("12.9 mm")))
sketch11.addConstraint(Sketcher.Constraint("DistanceX", -1, 1, 0, 2, Q("7 mm")))
pocket5 = body.newObject("PartDesign::Pocket", "Pocket004")
pocket5.Profile = sketch11
pocket5.Length = 5.9
pocket5.Reversed = True

sketch12 = body.newObject("Sketcher::SketchObject", "Sketch011")
sketch12.AttachmentSupport = (doc.getObject("XY_Plane"), [""])
sketch12.MapMode = "FlatFace"
sketch12.AttachmentOffset = App.Placement(App.Vector(0, 0, -68.8), App.Rotation())
sketch12.addGeometry(Part.LineSegment(App.Vector(-5.9, -1.5, 0), App.Vector(0.1, -1.5, 0)), False)
sketch12.addGeometry(Part.LineSegment(App.Vector(0.1, -1.5, 0), App.Vector(7, -6.5, 0)), False)
sketch12.addGeometry(Part.LineSegment(App.Vector(7, -6.5, 0), App.Vector(11, -6.5, 0)), False)
sketch12.addGeometry(Part.LineSegment(App.Vector(11, -6.5, 0), App.Vector(11, 6.5, 0)), False)
sketch12.addGeometry(Part.LineSegment(App.Vector(11, 6.5, 0), App.Vector(7, 6.5, 0)), False)
sketch12.addGeometry(Part.LineSegment(App.Vector(7, 6.5, 0), App.Vector(0.1, 1.5, 0)), False)
sketch12.addGeometry(Part.LineSegment(App.Vector(0.1, 1.5, 0), App.Vector(-5.9, 1.5, 0)), False)
sketch12.addGeometry(Part.LineSegment(App.Vector(-5.9, 1.5, 0), App.Vector(-5.9, -1.5, 0)), False)
sketch12.addConstraint(Sketcher.Constraint("Coincident", 0, 2, 1, 1))
sketch12.addConstraint(Sketcher.Constraint("Coincident", 1, 2, 2, 1))
sketch12.addConstraint(Sketcher.Constraint("Coincident", 2, 2, 3, 1))
sketch12.addConstraint(Sketcher.Constraint("Coincident", 3, 2, 4, 1))
sketch12.addConstraint(Sketcher.Constraint("Coincident", 4, 2, 5, 1))
sketch12.addConstraint(Sketcher.Constraint("Coincident", 5, 2, 6, 1))
sketch12.addConstraint(Sketcher.Constraint("Coincident", 6, 2, 7, 1))
sketch12.addConstraint(Sketcher.Constraint("Coincident", 7, 2, 0, 1))
sketch12.addConstraint(Sketcher.Constraint("Horizontal", 0))
sketch12.addConstraint(Sketcher.Constraint("Horizontal", 2))
sketch12.addConstraint(Sketcher.Constraint("Vertical", 3))
sketch12.addConstraint(Sketcher.Constraint("Horizontal", 4))
sketch12.addConstraint(Sketcher.Constraint("Horizontal", 6))
sketch12.addConstraint(Sketcher.Constraint("Vertical", 7))
sketch12.addConstraint(Sketcher.Constraint("Symmetric", 1, 2, 4, 2, -1))
sketch12.addConstraint(Sketcher.Constraint("Symmetric", 0, 2, 5, 2, -1))
sketch12.addConstraint(Sketcher.Constraint("DistanceX", 0, 1, 0, 2, Q("6 mm")))
sketch12.addConstraint(Sketcher.Constraint("DistanceX", 2, 1, 2, 2, Q("4 mm")))
sketch12.addConstraint(Sketcher.Constraint("DistanceY", 3, 1, 3, 2, Q("13 mm")))
sketch12.addConstraint(Sketcher.Constraint("DistanceY", 7, 2, 7, 1, Q("3 mm")))
sketch12.addConstraint(Sketcher.Constraint("DistanceX", -1, 1, 1, 2, Q("7 mm")))
sketch12.addConstraint(Sketcher.Constraint("DistanceX", -1, 1, 0, 2, Q("0.1 mm")))
pad7 = body.newObject("PartDesign::Pad", "Pad006")
pad7.Profile = sketch12
pad7.Length = 3

sketch13 = body.newObject("Sketcher::SketchObject", "Sketch012")
sketch13.AttachmentSupport = (doc.getObject("XZ_Plane"), [""])
sketch13.MapMode = "FlatFace"
sketch13.AttachmentOffset = App.Placement(App.Vector(0, 0, 1.5), App.Rotation())
sketch13.addGeometry(Part.Circle(App.Vector(-2.4, -69.3, 0), App.Vector(0, 0, 1), 1.6), False)
sketch13.addConstraint(Sketcher.Constraint("Diameter", 0, Q("3.2 mm")))
sketch13.addConstraint(Sketcher.Constraint("DistanceX", 0, 3, -1, 1, Q("2.4 mm")))
sketch13.addConstraint(Sketcher.Constraint("DistanceY", 0, 3, -1, 1, Q("69.3 mm")))
pocket6 = body.newObject("PartDesign::Pocket", "Pocket005")
pocket6.Profile = sketch13
pocket6.Type = "ThroughAll"

sketch14 = body.newObject("Sketcher::SketchObject", "Sketch013")
sketch14.AttachmentSupport = (doc.getObject("XY_Plane"), [""])
sketch14.MapMode = "FlatFace"
sketch14.AttachmentOffset = App.Placement(App.Vector(0, 0, -65.8), App.Rotation())
sketch14.addGeometry(Part.LineSegment(App.Vector(1.1, -1.5, 0), App.Vector(0.1, -1.5, 0)), False)
sketch14.addGeometry(Part.LineSegment(App.Vector(0.1, -1.5, 0), App.Vector(7, -6.5, 0)), False)
sketch14.addGeometry(Part.LineSegment(App.Vector(7, -6.5, 0), App.Vector(1.1, -1.5, 0)), False)
sketch14.addGeometry(Part.LineSegment(App.Vector(7, 6.5, 0), App.Vector(0.1, 1.5, 0)), False)
sketch14.addGeometry(Part.LineSegment(App.Vector(0.1, 1.5, 0), App.Vector(1.1, 1.5, 0)), False)
sketch14.addGeometry(Part.LineSegment(App.Vector(1.1, 1.5, 0), App.Vector(7, 6.5, 0)), False)
sketch14.addConstraint(Sketcher.Constraint("Coincident", 0, 2, 1, 1))
sketch14.addConstraint(Sketcher.Constraint("Coincident", 1, 2, 2, 1))
sketch14.addConstraint(Sketcher.Constraint("Coincident", 2, 2, 0, 1))
sketch14.addConstraint(Sketcher.Constraint("Coincident", 3, 2, 4, 1))
sketch14.addConstraint(Sketcher.Constraint("Coincident", 4, 2, 5, 1))
sketch14.addConstraint(Sketcher.Constraint("Coincident", 5, 2, 3, 1))
sketch14.addConstraint(Sketcher.Constraint("Horizontal", 0))
sketch14.addConstraint(Sketcher.Constraint("Horizontal", 4))
sketch14.addConstraint(Sketcher.Constraint("Symmetric", 0, 2, 3, 2, -1))
sketch14.addConstraint(Sketcher.Constraint("Symmetric", 1, 2, 5, 2, -1))
sketch14.addConstraint(Sketcher.Constraint("Vertical", 2, 2, 4, 2))
sketch14.addConstraint(Sketcher.Constraint("DistanceX", 0, 2, 0, 1, Q("1 mm")))
sketch14.addConstraint(Sketcher.Constraint("DistanceX", -1, 1, 1, 2, Q("7 mm")))
sketch14.addConstraint(Sketcher.Constraint("DistanceY", 1, 2, 0, 2, Q("5 mm")))
sketch14.addConstraint(Sketcher.Constraint("DistanceY", 0, 2, 3, 2, Q("3 mm")))
sketch14.addConstraint(Sketcher.Constraint("DistanceX", -1, 1, 0, 2, Q("0.1 mm")))
pocket7 = body.newObject("PartDesign::Pocket", "Pocket006")
pocket7.Profile = sketch14
pocket7.Length = 10

sketch15 = body.newObject("Sketcher::SketchObject", "Sketch014")
sketch15.AttachmentSupport = (doc.getObject("XY_Plane"), [""])
sketch15.MapMode = "FlatFace"
sketch15.AttachmentOffset = App.Placement(App.Vector(0, 0, -78.8), App.Rotation())
sketch15.addGeometry(Part.LineSegment(App.Vector(11, 6.5, 0), App.Vector(11, -6.5, 0)), False)
sketch15.addGeometry(Part.LineSegment(App.Vector(11, -6.5, 0), App.Vector(7, -6.5, 0)), False)
sketch15.addGeometry(Part.LineSegment(App.Vector(7, -6.5, 0), App.Vector(7, 6.5, 0)), False)
sketch15.addGeometry(Part.LineSegment(App.Vector(7, 6.5, 0), App.Vector(11, 6.5, 0)), False)
sketch15.addConstraint(Sketcher.Constraint("Coincident", 0, 2, 1, 1))
sketch15.addConstraint(Sketcher.Constraint("Coincident", 1, 2, 2, 1))
sketch15.addConstraint(Sketcher.Constraint("Coincident", 2, 2, 3, 1))
sketch15.addConstraint(Sketcher.Constraint("Coincident", 3, 2, 0, 1))
sketch15.addConstraint(Sketcher.Constraint("Vertical", 0))
sketch15.addConstraint(Sketcher.Constraint("Horizontal", 1))
sketch15.addConstraint(Sketcher.Constraint("Vertical", 2))
sketch15.addConstraint(Sketcher.Constraint("Horizontal", 3))
sketch15.addConstraint(Sketcher.Constraint("DistanceX", 1, 2, 1, 1, Q("4 mm")))
sketch15.addConstraint(Sketcher.Constraint("DistanceY", 0, 2, 0, 1, Q("13 mm")))
sketch15.addConstraint(Sketcher.Constraint("DistanceX", -1, 1, 0, 2, Q("11 mm")))
sketch15.addConstraint(Sketcher.Constraint("DistanceY", 0, 2, -1, 1, Q("6.5 mm")))
pad8 = body.newObject("PartDesign::Pad", "Pad007")
pad8.Profile = sketch15
pad8.Length = 2
pad8.Reversed = True

sketch16 = body.newObject("Sketcher::SketchObject", "Sketch015")
sketch16.AttachmentSupport = (doc.getObject("XZ_Plane"), [""])
sketch16.MapMode = "FlatFace"
sketch16.AttachmentOffset = App.Placement(App.Vector(0, 0, -1.5), App.Rotation())
sketch16.addGeometry(Part.LineSegment(App.Vector(1.1, -72.8, 0), App.Vector(-5.9, -72.8, 0)), False)
sketch16.addGeometry(Part.LineSegment(App.Vector(-5.9, -72.8, 0), App.Vector(-5.9, -65.8, 0)), False)
sketch16.addGeometry(Part.LineSegment(App.Vector(-5.9, -65.8, 0), App.Vector(1.1, -65.8, 0)), False)
sketch16.addGeometry(Part.LineSegment(App.Vector(1.1, -65.8, 0), App.Vector(1.1, -72.8, 0)), False)
sketch16.addGeometry(Part.Circle(App.Vector(-2.4, -69.3, 0), App.Vector(0, 0, 1), 1.6), False)
sketch16.addConstraint(Sketcher.Constraint("Coincident", 0, 2, 1, 1))
sketch16.addConstraint(Sketcher.Constraint("Coincident", 1, 2, 2, 1))
sketch16.addConstraint(Sketcher.Constraint("Coincident", 2, 2, 3, 1))
sketch16.addConstraint(Sketcher.Constraint("Coincident", 3, 2, 0, 1))
sketch16.addConstraint(Sketcher.Constraint("Horizontal", 0))
sketch16.addConstraint(Sketcher.Constraint("Vertical", 1))
sketch16.addConstraint(Sketcher.Constraint("Horizontal", 2))
sketch16.addConstraint(Sketcher.Constraint("Vertical", 3))
sketch16.addConstraint(Sketcher.Constraint("Equal", 2, 1))
sketch16.addConstraint(Sketcher.Constraint("Diameter", 4, Q("3.2 mm")))
sketch16.addConstraint(Sketcher.Constraint("DistanceX", 0, 2, 0, 1, Q("7 mm")))
sketch16.addConstraint(Sketcher.Constraint("DistanceX", 4, 3, -1, 1, Q("2.4 mm")))
sketch16.addConstraint(Sketcher.Constraint("DistanceY", 4, 3, -1, 1, Q("69.3 mm")))
sketch16.addConstraint(Sketcher.Constraint("DistanceX", 0, 2, -1, 1, Q("5.9 mm")))
sketch16.addConstraint(Sketcher.Constraint("DistanceY", 0, 2, -1, 1, Q("72.8 mm")))
pad9 = body.newObject("PartDesign::Pad", "Pad008")
pad9.Profile = sketch16
pad9.Length = 1
pad9.Reversed = True

sketch17 = body.newObject("Sketcher::SketchObject", "Sketch016")
sketch17.AttachmentSupport = (doc.getObject("XZ_Plane"), [""])
sketch17.MapMode = "FlatFace"
sketch17.AttachmentOffset = App.Placement(App.Vector(0, 0, 1.5), App.Rotation())
sketch17.addGeometry(Part.LineSegment(App.Vector(-5.9, -65.8, 0), App.Vector(-5.9, -72.8, 0)), False)
sketch17.addGeometry(Part.LineSegment(App.Vector(-5.9, -72.8, 0), App.Vector(1.1, -72.8, 0)), False)
sketch17.addGeometry(Part.LineSegment(App.Vector(1.1, -72.8, 0), App.Vector(1.1, -65.8, 0)), False)
sketch17.addGeometry(Part.LineSegment(App.Vector(1.1, -65.8, 0), App.Vector(-5.9, -65.8, 0)), False)
sketch17.addGeometry(Part.Circle(App.Vector(-2.4, -69.3, 0), App.Vector(0, 0, 1), 1.6), False)
sketch17.addConstraint(Sketcher.Constraint("Coincident", 0, 2, 1, 1))
sketch17.addConstraint(Sketcher.Constraint("Coincident", 1, 2, 2, 1))
sketch17.addConstraint(Sketcher.Constraint("Coincident", 2, 2, 3, 1))
sketch17.addConstraint(Sketcher.Constraint("Coincident", 3, 2, 0, 1))
sketch17.addConstraint(Sketcher.Constraint("Vertical", 0))
sketch17.addConstraint(Sketcher.Constraint("Horizontal", 1))
sketch17.addConstraint(Sketcher.Constraint("Vertical", 2))
sketch17.addConstraint(Sketcher.Constraint("Horizontal", 3))
sketch17.addConstraint(Sketcher.Constraint("Equal", 3, 0))
sketch17.addConstraint(Sketcher.Constraint("Diameter", 4, Q("3.2 mm")))
sketch17.addConstraint(Sketcher.Constraint("DistanceX", 1, 1, 1, 2, Q("7 mm")))
sketch17.addConstraint(Sketcher.Constraint("DistanceX", 4, 3, -1, 1, Q("2.4 mm")))
sketch17.addConstraint(Sketcher.Constraint("DistanceY", 4, 3, -1, 1, Q("69.3 mm")))
sketch17.addConstraint(Sketcher.Constraint("DistanceX", 0, 2, -1, 1, Q("5.9 mm")))
sketch17.addConstraint(Sketcher.Constraint("DistanceY", 0, 2, -1, 1, Q("72.8 mm")))
pad10 = body.newObject("PartDesign::Pad", "Pad009")
pad10.Profile = sketch17
pad10.Length = 1

sketch18 = body.newObject("Sketcher::SketchObject", "Sketch017")
sketch18.AttachmentSupport = (doc.getObject("XY_Plane"), [""])
sketch18.MapMode = "FlatFace"
sketch18.AttachmentOffset = App.Placement(App.Vector(0, 0, -72.8), App.Rotation())
sketch18.addGeometry(Part.LineSegment(App.Vector(1.1, 1.5, 0), App.Vector(1.1, 2.5, 0)), False)
sketch18.addGeometry(Part.LineSegment(App.Vector(1.1, 2.5, 0), App.Vector(7, 6.5, 0)), False)
sketch18.addGeometry(Part.LineSegment(App.Vector(7, 6.5, 0), App.Vector(1.1, 1.5, 0)), False)
sketch18.addGeometry(Part.LineSegment(App.Vector(7, -6.5, 0), App.Vector(1.1, -2.5, 0)), False)
sketch18.addGeometry(Part.LineSegment(App.Vector(1.1, -2.5, 0), App.Vector(1.1, -1.5, 0)), False)
sketch18.addGeometry(Part.LineSegment(App.Vector(1.1, -1.5, 0), App.Vector(7, -6.5, 0)), False)
sketch18.addConstraint(Sketcher.Constraint("Coincident", 0, 2, 1, 1))
sketch18.addConstraint(Sketcher.Constraint("Coincident", 1, 2, 2, 1))
sketch18.addConstraint(Sketcher.Constraint("Coincident", 2, 2, 0, 1))
sketch18.addConstraint(Sketcher.Constraint("Coincident", 3, 2, 4, 1))
sketch18.addConstraint(Sketcher.Constraint("Coincident", 4, 2, 5, 1))
sketch18.addConstraint(Sketcher.Constraint("Coincident", 5, 2, 3, 1))
sketch18.addConstraint(Sketcher.Constraint("Vertical", 0))
sketch18.addConstraint(Sketcher.Constraint("Vertical", 4))
sketch18.addConstraint(Sketcher.Constraint("Symmetric", 0, 2, 3, 2, -1))
sketch18.addConstraint(Sketcher.Constraint("Symmetric", 1, 2, 5, 2, -1))
sketch18.addConstraint(Sketcher.Constraint("Equal", 0, 4))
sketch18.addConstraint(Sketcher.Constraint("DistanceY", 0, 1, 0, 2, Q("1 mm")))
sketch18.addConstraint(Sketcher.Constraint("DistanceX", -1, 1, 1, 2, Q("7 mm")))
sketch18.addConstraint(Sketcher.Constraint("DistanceY", 0, 2, 1, 2, Q("4 mm")))
sketch18.addConstraint(Sketcher.Constraint("DistanceY", 3, 2, 2, 2, Q("4 mm")))
sketch18.addConstraint(Sketcher.Constraint("DistanceX", -1, 1, 0, 2, Q("1.1 mm")))
pad11 = body.newObject("PartDesign::Pad", "Pad010")
pad11.Profile = sketch18
pad11.Length = 7
doc.recompute()

fillet = body.newObject("PartDesign::Fillet", "Fillet")
fillet.Base = (pad11, edges_at(pad11, [(1.1, -2.5, -69.3), (1.1, 2.5, -69.3)]))
fillet.Radius = 1

doc.recompute()
